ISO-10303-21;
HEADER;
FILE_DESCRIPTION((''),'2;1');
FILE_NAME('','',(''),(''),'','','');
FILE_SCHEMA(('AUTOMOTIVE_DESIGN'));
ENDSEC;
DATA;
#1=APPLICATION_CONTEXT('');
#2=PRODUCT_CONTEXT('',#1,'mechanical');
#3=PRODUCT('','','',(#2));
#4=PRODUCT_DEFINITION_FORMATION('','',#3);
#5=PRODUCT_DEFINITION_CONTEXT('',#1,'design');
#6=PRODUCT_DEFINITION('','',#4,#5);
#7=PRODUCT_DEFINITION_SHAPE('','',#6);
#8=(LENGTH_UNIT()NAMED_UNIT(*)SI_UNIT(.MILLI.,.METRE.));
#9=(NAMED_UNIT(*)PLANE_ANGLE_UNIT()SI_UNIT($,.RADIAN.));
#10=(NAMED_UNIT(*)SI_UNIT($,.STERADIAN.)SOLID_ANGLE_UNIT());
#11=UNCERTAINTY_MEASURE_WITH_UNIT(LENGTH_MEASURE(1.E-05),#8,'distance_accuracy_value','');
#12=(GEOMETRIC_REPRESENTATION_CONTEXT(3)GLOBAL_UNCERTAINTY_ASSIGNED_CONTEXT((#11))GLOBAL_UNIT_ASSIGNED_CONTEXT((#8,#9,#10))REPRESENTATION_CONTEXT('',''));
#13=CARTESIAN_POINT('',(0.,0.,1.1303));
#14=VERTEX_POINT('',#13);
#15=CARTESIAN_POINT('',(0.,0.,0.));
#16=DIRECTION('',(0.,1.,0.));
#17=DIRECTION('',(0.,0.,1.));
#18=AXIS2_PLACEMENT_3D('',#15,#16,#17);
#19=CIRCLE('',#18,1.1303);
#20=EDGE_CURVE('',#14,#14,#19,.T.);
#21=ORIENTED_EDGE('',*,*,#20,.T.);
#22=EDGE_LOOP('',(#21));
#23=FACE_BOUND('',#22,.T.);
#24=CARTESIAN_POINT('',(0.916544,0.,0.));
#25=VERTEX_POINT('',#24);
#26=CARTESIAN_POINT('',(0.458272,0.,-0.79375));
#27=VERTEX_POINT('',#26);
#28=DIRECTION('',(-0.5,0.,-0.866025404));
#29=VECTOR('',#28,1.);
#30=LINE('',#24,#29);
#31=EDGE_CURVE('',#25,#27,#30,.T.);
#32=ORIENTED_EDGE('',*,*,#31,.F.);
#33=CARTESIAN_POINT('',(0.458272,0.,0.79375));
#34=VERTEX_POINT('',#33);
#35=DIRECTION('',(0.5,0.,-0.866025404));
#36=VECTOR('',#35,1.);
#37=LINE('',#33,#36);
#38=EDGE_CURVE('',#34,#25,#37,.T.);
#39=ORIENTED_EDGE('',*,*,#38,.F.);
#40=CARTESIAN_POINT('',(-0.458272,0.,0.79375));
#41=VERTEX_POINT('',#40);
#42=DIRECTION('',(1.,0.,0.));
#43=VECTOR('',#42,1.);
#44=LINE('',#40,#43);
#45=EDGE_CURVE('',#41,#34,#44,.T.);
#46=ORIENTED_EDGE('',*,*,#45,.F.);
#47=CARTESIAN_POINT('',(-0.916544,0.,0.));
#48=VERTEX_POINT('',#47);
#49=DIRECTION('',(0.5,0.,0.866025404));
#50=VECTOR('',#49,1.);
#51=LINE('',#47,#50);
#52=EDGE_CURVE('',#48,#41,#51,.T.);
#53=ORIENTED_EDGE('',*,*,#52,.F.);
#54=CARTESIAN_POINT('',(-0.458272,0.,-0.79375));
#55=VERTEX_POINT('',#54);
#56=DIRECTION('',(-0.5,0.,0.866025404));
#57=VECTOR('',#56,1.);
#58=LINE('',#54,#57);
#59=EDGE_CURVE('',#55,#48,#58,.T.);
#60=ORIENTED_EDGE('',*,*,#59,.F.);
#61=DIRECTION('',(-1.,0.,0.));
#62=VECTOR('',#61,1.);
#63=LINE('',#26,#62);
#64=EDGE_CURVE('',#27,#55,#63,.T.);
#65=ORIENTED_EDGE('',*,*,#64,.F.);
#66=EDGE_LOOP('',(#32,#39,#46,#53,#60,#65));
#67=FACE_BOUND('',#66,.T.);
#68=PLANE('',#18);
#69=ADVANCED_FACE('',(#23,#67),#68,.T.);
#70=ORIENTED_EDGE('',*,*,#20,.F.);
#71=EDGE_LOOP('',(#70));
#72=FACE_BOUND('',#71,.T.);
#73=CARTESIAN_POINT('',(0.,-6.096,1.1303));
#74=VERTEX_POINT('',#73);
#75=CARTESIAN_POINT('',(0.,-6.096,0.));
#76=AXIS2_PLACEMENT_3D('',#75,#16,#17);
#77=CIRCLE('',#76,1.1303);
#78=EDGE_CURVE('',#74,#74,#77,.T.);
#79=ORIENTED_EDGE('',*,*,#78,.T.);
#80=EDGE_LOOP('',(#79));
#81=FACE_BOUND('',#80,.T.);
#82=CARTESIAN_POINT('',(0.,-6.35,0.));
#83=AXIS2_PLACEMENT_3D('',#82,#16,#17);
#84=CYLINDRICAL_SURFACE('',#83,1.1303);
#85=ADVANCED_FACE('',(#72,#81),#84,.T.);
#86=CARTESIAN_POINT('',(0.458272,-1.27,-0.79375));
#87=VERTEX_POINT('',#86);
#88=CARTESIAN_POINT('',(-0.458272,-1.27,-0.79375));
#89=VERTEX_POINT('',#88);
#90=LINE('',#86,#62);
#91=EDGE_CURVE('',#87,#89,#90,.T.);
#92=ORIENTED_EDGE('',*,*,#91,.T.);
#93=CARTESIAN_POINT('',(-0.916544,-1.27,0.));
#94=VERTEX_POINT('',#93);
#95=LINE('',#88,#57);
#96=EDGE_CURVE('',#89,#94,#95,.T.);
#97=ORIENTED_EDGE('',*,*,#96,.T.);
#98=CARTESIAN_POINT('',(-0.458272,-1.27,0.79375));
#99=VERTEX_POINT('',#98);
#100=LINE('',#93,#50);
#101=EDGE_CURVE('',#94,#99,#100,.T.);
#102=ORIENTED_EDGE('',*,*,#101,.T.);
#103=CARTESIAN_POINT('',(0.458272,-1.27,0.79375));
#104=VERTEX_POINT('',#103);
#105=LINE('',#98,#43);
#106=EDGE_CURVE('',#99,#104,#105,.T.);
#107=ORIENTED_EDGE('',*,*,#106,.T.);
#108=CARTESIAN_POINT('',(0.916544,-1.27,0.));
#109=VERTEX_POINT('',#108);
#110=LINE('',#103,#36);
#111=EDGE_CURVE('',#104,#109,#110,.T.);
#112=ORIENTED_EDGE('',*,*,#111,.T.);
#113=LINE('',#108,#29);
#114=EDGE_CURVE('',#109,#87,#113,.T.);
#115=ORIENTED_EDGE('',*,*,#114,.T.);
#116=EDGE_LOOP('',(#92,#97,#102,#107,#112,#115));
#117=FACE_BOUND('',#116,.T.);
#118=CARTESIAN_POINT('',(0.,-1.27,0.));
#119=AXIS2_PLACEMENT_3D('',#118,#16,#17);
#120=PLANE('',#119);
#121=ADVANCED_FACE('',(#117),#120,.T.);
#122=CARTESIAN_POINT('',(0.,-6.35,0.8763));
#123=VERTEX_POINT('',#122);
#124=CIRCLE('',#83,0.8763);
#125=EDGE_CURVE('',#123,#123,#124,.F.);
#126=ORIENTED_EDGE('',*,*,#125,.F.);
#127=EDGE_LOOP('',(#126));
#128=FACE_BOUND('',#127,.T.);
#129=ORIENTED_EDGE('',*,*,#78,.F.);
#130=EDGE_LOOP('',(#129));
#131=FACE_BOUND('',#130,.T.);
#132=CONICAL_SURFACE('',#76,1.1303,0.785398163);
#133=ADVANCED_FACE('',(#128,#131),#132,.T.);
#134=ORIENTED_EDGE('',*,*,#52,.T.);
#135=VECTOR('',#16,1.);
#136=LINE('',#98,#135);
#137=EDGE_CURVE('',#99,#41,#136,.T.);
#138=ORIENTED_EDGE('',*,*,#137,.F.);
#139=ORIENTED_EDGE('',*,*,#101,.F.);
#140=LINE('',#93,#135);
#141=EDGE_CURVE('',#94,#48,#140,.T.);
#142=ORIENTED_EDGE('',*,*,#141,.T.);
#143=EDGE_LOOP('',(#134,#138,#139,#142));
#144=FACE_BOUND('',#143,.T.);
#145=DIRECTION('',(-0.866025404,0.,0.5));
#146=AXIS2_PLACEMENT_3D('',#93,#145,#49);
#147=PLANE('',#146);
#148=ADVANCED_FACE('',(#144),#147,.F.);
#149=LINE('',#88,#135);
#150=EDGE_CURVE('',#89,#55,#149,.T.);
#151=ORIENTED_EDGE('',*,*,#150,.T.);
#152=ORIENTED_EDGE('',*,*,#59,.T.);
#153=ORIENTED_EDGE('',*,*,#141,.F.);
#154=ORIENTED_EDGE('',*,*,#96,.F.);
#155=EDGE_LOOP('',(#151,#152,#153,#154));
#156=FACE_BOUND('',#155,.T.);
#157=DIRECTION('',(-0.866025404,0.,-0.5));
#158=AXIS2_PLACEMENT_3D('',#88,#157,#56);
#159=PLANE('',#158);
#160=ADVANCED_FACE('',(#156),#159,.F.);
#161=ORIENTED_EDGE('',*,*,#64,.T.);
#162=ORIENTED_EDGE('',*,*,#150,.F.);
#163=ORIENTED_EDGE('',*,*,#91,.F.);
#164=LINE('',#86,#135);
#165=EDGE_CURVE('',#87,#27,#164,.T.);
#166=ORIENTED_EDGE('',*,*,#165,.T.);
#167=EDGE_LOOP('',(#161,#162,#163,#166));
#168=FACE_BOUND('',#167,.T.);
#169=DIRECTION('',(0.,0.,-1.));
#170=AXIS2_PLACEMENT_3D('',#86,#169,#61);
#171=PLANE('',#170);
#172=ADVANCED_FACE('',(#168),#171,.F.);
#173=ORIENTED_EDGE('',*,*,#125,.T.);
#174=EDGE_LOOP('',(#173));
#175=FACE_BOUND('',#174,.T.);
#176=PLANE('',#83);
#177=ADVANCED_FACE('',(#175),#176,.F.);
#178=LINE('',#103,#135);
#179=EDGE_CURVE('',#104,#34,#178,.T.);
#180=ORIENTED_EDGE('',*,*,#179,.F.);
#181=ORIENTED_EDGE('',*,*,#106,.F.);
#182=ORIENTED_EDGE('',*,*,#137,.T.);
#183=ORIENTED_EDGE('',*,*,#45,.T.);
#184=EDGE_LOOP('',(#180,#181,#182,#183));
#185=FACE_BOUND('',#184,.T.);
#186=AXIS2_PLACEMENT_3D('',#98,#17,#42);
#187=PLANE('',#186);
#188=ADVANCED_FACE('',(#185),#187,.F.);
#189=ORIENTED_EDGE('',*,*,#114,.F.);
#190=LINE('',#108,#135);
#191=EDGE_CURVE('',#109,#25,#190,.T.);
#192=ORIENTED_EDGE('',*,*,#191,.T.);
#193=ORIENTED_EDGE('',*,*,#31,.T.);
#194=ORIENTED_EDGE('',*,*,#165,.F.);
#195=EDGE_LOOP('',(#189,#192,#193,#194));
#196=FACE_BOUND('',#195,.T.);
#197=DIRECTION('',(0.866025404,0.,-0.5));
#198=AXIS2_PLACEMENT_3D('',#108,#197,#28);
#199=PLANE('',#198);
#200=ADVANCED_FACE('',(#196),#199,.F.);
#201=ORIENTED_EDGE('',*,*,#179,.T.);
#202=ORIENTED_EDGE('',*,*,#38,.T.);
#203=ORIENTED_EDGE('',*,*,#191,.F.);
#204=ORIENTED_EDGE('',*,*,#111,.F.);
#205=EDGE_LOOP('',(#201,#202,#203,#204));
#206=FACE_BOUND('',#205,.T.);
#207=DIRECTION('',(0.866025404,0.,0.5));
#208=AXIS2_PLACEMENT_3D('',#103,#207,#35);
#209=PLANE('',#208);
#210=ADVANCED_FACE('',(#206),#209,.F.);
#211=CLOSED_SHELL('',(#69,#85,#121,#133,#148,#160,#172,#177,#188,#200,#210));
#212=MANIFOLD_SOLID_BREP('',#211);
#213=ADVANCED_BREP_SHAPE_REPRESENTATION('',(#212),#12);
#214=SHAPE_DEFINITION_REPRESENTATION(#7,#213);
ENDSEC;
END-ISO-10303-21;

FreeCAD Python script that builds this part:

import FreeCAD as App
import Part
import Sketcher
from FreeCAD import Vector
Q = App.Units.Quantity


def edges_at(feature, points):
    """Names of the edges that pass closest to the given points."""
    edges = feature.Shape.Edges
    near = lambda p: min(range(len(edges)), key=lambda i: edges[i].distToShape(Part.Vertex(*p))[0])
    return sorted({f"Edge{near(p) + 1}" for p in points})


def add_polygon(sketch, points):
    """Adds a closed chain of lines whose ends are joined by coincident constraints."""
    first, n = sketch.GeometryCount, len(points)
    for a, b in zip(points, points[1:] + points[:1]):
        sketch.addGeometry(Part.LineSegment(App.Vector(*a, 0), App.Vector(*b, 0)), False)
    for i in range(n):
        sketch.addConstraint(Sketcher.Constraint("Coincident", first + i, 2, first + (i + 1) % n, 1))

doc = App.newDocument("Part")
body = doc.addObject("PartDesign::Body", "Body")

sketch1 = doc.addObject("Sketcher::SketchObject", "Sketch")
body.addObject(sketch1)
sketch1.AttachmentSupport = (doc.XZ_Plane, [""])
sketch1.MapMode = "FlatFace"
sketch1.addGeometry(Part.Circle(Vector(0, 0, 0), Vector(0, 0, 1), 1.1303), False)
sketch1.addConstraint([
    Sketcher.Constraint("Coincident", 0, 3, -1, 1),
    Sketcher.Constraint("Diameter", 0, Q("0.089 in")),
])
pad1 = doc.addObject("PartDesign::Pad", "Pad")
body.addObject(pad1)
pad1.Profile = sketch1
pad1.Length = Q("0.25 in")
doc.recompute()

chamfer = doc.addObject("PartDesign::Chamfer", "Chamfer")
body.addObject(chamfer)
chamfer.Base = (pad1, edges_at(pad1, [(0, -6.35, -1.13)]))
chamfer.Size = Q("0.01 in")

sketch2 = doc.addObject("Sketcher::SketchObject", "Sketch001")
body.addObject(sketch2)
sketch2.AttachmentSupport = (doc.XZ_Plane, [""])
sketch2.MapMode = "FlatFace"
add_polygon(sketch2, [(-0.916544, 0), (-0.458272, 0.79375), (0.458272, 0.79375), (0.916544, 0), (0.458272, -0.79375), (-0.458272, -0.79375)])
sketch2.addConstraint([
    Sketcher.Constraint("Horizontal", 1),
    Sketcher.Constraint("Horizontal", 4),
    Sketcher.Constraint("Symmetric", 0, 2, 3, 2, -1, 1),
    Sketcher.Constraint("Symmetric", 2, 2, 5, 2, -1, 1),
    Sketcher.Constraint("PointOnObject", 2, 2, -1),
    Sketcher.Constraint("Parallel", 2, 5),
    Sketcher.Constraint("Vertical", 1, 2, 3, 2),
    Sketcher.Constraint("Angle", 0, Q("60 deg")),
    Sketcher.Constraint("DistanceY", -1, 1, 0, 2, Q("0.03125 in")),
    Sketcher.Constraint("DistanceX", 1, 1, 1, 2, 0.916544),
])
pocket1 = doc.addObject("PartDesign::Pocket", "Pocket")
body.addObject(pocket1)
pocket1.Profile = sketch2
pocket1.Length = Q("0.05 in")
pocket1.Reversed = True

doc.recompute()
